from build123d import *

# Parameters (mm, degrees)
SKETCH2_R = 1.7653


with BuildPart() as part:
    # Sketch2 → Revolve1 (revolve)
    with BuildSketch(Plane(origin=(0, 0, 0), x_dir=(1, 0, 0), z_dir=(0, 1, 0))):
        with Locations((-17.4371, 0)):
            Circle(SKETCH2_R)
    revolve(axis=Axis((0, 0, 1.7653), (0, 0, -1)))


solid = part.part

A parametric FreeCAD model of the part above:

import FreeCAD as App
import Part
import Sketcher
from FreeCAD import Vector
Q = App.Units.Quantity

doc = App.newDocument("Part")
body = doc.addObject("PartDesign::Body", "Body")

sketch1 = body.newObject("Sketcher::SketchObject", "Sketch")
sketch1.AttachmentSupport = (doc.getObject("XZ_Plane"), [""])
sketch1.MapMode = "FlatFace"
sketch1.addGeometry(Part.Circle(Vector(-17.4, 0, 0), Vector(0, 0, 1), 1.8), False)
sketch1.addConstraint(Sketcher.Constraint("PointOnObject", 0, 3, -1))
sketch1.addConstraint(Sketcher.Constraint("Diameter", 0, Q("0.139 in")))
sketch1.addConstraint(Sketcher.Constraint("DistanceX", 0, 3, -1, 1, Q("0.6865 in")))
revolution = body.newObject("PartDesign::Revolution", "Revolution")
revolution.Profile = sketch1
revolution.ReferenceAxis = (sketch1, ["V_Axis"])
revolution.Angle = 360

doc.recompute()
